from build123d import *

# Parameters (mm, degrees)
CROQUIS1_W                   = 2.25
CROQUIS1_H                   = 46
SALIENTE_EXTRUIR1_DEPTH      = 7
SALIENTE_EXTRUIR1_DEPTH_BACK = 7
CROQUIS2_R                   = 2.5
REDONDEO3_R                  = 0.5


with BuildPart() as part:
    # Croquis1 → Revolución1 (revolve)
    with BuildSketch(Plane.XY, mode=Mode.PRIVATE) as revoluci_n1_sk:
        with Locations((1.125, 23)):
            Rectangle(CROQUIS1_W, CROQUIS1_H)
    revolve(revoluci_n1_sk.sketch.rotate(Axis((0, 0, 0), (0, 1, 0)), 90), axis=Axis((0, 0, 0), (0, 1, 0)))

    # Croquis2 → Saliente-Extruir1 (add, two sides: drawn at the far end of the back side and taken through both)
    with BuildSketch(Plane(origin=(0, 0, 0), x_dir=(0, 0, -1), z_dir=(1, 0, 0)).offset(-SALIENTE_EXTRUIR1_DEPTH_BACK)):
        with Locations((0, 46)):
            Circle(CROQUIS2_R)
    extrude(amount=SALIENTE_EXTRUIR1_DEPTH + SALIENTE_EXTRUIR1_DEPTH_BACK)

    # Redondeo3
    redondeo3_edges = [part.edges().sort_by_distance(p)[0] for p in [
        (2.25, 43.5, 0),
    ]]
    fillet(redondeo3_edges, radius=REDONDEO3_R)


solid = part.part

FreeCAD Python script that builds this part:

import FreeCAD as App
import Part
import Sketcher


def edges_at(feature, points):
    """Names of the edges that pass closest to the given points."""
    edges = feature.Shape.Edges
    near = lambda p: min(range(len(edges)), key=lambda i: edges[i].distToShape(Part.Vertex(*p))[0])
    return sorted({f"Edge{near(p) + 1}" for p in points})


def add_polygon(sketch, points):
    """Adds a closed chain of lines whose ends are joined by coincident constraints."""
    first, n = sketch.GeometryCount, len(points)
    for a, b in zip(points, points[1:] + points[:1]):
        sketch.addGeometry(Part.LineSegment(App.Vector(*a, 0), App.Vector(*b, 0)), False)
    for i in range(n):
        sketch.addConstraint(Sketcher.Constraint("Coincident", first + i, 2, first + (i + 1) % n, 1))

doc = App.newDocument("Part")
body = doc.addObject("PartDesign::Body", "Body")

# Sketch on XY plane
sketch1 = doc.addObject("Sketcher::SketchObject", "Sketch")
body.addObject(sketch1)
sketch1.AttachmentSupport = (doc.XY_Plane, [""])
sketch1.MapMode = "FlatFace"
add_polygon(sketch1, [(0, 46), (0, 0), (2.25, 0), (2.25, 46)])  # lines 0-3
sketch1.addConstraint([
    Sketcher.Constraint("Vertical", 0),
    Sketcher.Constraint("Horizontal", 1),
    Sketcher.Constraint("Vertical", 2),
    Sketcher.Constraint("Horizontal", 3),
    Sketcher.Constraint("Coincident", 0, 2, -1, 1),
    Sketcher.Constraint("DistanceY", 0, 2, 0, 1, 46.0),
    Sketcher.Constraint("DistanceX", 1, 1, 1, 2, 2.25),
])
revolution = doc.addObject("PartDesign::Revolution", "Revolution")
body.addObject(revolution)
revolution.Profile = sketch1
revolution.ReferenceAxis = (sketch1, ["V_Axis"])
revolution.Angle = 360

# Sketch on YZ plane
sketch2 = doc.addObject("Sketcher::SketchObject", "Sketch001")
body.addObject(sketch2)
sketch2.AttachmentSupport = (doc.YZ_Plane, [""])
sketch2.MapMode = "FlatFace"
sketch2.addGeometry(Part.Circle(App.Vector(46, 0, 0), App.Vector(0, 0, 1), 2.5), False)
sketch2.addConstraint([
    Sketcher.Constraint("PointOnObject", 0, 3, -1),
    Sketcher.Constraint("Diameter", 0, 5.0),
    Sketcher.Constraint("DistanceX", -1, 1, 0, 3, 46.0),
])
pad1 = doc.addObject("PartDesign::Pad", "Pad")
body.addObject(pad1)
pad1.Profile = sketch2
pad1.Type = "TwoLengths"
pad1.Length = 7
pad1.Length2 = 7
doc.recompute()

fillet = doc.addObject("PartDesign::Fillet", "Fillet")
body.addObject(fillet)
fillet.Base = (pad1, edges_at(pad1, [(0, 44.91, 2.25)]))
fillet.Radius = 0.5

doc.recompute()
